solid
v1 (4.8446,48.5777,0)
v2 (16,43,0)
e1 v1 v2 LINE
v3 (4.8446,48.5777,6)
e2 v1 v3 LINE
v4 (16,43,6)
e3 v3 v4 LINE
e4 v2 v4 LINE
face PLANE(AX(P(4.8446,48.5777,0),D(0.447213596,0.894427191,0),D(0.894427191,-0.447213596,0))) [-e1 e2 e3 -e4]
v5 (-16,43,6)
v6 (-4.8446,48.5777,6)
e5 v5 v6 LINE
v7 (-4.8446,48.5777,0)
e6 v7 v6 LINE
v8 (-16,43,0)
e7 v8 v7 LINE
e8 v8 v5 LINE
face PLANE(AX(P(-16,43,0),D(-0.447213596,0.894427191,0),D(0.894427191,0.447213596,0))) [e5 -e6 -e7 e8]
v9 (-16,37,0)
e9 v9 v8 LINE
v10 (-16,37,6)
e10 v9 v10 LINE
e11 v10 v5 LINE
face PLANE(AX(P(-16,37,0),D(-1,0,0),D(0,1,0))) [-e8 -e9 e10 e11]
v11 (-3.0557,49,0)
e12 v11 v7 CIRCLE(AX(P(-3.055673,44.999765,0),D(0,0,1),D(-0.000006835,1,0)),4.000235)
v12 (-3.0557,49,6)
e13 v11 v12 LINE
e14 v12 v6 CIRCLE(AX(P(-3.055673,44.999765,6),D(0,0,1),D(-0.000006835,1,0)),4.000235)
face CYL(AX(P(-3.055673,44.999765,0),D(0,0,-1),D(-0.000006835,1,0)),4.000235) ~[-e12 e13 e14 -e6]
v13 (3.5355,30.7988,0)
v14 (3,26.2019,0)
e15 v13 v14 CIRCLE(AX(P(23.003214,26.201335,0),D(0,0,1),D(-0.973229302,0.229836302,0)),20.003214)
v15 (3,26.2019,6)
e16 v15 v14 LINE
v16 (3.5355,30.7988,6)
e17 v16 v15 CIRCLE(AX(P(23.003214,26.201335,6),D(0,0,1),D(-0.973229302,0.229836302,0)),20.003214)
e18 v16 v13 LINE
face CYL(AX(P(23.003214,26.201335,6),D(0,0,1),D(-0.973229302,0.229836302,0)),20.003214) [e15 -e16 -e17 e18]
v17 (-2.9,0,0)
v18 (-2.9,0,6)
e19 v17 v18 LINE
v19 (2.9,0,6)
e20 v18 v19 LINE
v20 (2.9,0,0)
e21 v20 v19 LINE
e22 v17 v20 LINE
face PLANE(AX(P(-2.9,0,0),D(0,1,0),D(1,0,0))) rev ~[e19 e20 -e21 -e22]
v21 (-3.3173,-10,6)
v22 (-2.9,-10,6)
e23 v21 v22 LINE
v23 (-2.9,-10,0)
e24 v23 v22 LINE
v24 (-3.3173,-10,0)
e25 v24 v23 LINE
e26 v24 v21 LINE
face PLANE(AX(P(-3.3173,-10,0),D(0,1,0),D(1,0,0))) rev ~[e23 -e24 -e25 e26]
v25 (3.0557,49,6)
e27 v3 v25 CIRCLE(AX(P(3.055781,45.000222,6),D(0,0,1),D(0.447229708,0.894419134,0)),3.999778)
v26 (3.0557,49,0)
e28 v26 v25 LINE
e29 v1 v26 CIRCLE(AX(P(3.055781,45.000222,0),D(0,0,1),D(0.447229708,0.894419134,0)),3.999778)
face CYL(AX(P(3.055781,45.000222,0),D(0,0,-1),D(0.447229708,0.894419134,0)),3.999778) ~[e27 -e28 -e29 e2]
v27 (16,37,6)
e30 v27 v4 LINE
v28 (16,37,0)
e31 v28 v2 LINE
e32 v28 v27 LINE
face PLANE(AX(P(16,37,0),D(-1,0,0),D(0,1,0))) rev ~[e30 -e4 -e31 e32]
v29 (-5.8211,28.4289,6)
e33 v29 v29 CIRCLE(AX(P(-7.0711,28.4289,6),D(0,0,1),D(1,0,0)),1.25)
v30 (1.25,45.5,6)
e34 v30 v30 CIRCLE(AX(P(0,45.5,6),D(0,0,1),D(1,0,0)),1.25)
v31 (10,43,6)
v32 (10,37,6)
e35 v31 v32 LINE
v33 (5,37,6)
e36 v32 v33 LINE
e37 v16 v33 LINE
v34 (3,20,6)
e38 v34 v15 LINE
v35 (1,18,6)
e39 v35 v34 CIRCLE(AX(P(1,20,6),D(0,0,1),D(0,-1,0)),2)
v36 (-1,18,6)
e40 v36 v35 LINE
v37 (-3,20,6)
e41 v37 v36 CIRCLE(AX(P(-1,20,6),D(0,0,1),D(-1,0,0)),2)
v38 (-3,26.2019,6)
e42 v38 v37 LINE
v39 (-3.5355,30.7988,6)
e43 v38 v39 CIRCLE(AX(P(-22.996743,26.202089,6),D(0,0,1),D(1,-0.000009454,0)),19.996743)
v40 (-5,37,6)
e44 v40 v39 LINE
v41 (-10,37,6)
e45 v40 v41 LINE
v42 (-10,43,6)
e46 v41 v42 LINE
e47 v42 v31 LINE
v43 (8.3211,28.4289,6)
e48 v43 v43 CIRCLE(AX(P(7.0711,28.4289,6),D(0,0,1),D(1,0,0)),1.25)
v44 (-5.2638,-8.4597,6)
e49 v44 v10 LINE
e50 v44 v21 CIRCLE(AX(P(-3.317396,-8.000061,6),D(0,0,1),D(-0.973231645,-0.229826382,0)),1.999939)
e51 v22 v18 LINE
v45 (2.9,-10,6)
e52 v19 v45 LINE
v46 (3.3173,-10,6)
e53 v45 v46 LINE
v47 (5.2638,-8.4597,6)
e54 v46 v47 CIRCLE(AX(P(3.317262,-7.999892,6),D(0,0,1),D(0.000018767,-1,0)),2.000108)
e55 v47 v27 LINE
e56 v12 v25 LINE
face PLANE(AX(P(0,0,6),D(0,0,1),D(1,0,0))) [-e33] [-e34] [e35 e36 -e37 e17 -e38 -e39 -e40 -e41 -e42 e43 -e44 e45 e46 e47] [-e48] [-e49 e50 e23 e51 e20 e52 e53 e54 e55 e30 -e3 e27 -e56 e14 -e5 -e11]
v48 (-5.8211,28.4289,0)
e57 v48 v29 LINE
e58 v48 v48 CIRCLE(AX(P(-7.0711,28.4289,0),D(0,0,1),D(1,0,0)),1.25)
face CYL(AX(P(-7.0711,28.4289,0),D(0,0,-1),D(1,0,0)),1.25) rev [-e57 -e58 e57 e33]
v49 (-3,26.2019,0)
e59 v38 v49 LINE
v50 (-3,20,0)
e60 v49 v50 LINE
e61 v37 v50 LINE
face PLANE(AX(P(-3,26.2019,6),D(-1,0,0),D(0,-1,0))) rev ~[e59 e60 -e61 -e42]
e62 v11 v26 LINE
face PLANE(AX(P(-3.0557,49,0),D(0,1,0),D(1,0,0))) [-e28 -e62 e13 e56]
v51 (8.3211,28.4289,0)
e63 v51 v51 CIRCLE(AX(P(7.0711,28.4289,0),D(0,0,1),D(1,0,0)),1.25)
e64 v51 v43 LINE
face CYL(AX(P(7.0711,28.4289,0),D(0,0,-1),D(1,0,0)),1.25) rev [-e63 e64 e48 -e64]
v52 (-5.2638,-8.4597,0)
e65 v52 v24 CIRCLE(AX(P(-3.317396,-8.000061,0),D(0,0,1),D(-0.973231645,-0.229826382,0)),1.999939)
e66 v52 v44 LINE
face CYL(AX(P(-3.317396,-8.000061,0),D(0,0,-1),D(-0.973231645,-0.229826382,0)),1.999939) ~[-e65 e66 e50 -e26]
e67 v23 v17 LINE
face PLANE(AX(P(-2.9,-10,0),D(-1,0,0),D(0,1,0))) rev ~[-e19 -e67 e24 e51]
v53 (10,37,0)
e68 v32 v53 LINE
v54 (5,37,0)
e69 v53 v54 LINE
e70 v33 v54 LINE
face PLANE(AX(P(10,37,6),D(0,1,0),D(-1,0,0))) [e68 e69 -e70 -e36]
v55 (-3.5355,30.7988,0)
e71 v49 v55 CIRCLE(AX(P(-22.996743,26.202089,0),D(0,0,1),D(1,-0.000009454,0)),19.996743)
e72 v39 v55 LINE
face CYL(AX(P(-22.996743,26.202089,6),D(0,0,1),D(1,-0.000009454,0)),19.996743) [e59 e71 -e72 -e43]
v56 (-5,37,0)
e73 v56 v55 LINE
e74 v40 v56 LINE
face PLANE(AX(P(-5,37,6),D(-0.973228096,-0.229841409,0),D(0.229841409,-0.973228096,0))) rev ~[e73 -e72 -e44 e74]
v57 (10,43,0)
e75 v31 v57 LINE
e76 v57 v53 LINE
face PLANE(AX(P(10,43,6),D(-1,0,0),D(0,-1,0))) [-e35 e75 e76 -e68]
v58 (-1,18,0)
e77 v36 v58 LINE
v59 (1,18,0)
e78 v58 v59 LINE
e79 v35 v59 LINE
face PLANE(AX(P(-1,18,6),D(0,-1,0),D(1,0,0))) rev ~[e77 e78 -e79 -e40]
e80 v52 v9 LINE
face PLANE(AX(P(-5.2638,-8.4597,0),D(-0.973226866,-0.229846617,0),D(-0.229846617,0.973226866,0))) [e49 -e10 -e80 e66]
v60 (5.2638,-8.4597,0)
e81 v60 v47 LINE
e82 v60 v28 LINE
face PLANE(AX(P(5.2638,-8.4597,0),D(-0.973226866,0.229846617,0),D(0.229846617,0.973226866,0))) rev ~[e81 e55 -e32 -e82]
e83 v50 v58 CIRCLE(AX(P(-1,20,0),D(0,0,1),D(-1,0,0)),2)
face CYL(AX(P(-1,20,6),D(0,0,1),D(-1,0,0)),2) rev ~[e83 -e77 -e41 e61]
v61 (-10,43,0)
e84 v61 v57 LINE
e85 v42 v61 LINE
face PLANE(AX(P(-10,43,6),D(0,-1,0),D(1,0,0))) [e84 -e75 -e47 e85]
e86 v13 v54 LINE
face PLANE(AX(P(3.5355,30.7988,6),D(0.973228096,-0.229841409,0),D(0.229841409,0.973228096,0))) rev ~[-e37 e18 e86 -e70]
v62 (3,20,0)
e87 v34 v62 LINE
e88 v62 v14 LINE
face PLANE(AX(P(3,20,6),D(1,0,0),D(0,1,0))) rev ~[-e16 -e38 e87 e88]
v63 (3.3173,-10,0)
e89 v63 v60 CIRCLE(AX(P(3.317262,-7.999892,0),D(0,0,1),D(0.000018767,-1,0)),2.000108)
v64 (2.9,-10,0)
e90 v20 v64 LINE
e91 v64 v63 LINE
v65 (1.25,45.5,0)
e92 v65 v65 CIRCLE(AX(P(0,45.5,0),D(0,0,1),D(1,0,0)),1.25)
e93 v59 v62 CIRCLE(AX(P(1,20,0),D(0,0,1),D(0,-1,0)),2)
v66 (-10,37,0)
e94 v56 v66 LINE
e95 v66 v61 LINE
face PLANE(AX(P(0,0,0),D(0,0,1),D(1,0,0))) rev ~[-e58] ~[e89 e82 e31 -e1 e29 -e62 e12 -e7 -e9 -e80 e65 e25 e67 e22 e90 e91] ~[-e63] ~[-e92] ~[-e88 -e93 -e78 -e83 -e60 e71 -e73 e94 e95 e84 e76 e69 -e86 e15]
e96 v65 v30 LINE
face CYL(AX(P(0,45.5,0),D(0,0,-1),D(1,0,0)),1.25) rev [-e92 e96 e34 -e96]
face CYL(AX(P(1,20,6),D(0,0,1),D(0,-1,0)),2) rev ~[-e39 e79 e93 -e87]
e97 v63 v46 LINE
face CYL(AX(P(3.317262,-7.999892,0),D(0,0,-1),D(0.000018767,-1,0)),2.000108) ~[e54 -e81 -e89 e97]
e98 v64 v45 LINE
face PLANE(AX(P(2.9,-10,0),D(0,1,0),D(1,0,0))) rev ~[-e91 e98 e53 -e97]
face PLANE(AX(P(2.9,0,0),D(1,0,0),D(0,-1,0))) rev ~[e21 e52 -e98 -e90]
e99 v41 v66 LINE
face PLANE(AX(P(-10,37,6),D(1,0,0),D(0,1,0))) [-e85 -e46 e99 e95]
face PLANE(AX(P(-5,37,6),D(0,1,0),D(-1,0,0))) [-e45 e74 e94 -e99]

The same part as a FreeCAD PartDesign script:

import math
import FreeCAD as App
import Part
import Sketcher
Q = App.Units.Quantity

doc = App.newDocument("Part")
params = doc.addObject("Spreadsheet::Sheet", "Params")
for row, (alias, value) in enumerate([
    ("sketch1_radius", "2 mm"),
    ("sketch1_radius2", "4 mm"),
    ("sketch1_diameter", "2.5 mm"),
    ("sketch1_height", "10 mm"),
    ("sketch1_height2", "6 mm"),
    ("pad1_length", "6 mm"),
    ("sketch2_radius", "2 mm"),
    ("sketch2_radius2", "2 mm"),
    ("sketch2_width", "20 mm"),
    ("sketch2_width2", "5 mm"),
    ("sketch2_width3", "2 mm"),
], start=1):
    params.set(f"A{row}", alias)
    params.set(f"B{row}", "=" + value)
    params.setAlias(f"B{row}", alias)

body = doc.addObject("PartDesign::Body", "Body")

# Sketch on XY plane
sketch1 = body.newObject("Sketcher::SketchObject", "Sketch")
sketch1.AttachmentSupport = (doc.getObject("XY_Plane"), [""])
sketch1.MapMode = "FlatFace"
sketch1.addGeometry([
    Part.LineSegment(App.Vector(-3.3173, -10, 0), App.Vector(-2.9, -10, 0)),  # 0
    Part.LineSegment(App.Vector(-2.9, -10, 0), App.Vector(-2.9, 0, 0)),  # 1
    Part.LineSegment(App.Vector(-2.9, 0, 0), App.Vector(2.9, 0, 0)),  # 2
    Part.LineSegment(App.Vector(2.9, 0, 0), App.Vector(2.9, -10, 0)),  # 3
    Part.LineSegment(App.Vector(2.9, -10, 0), App.Vector(3.3173, -10, 0)),  # 4
    Part.ArcOfCircle(Part.Circle(App.Vector(3.3173, -8, 0), App.Vector(0, 0, 1), 2), math.radians(-90), math.radians(-13.287926)),  # 5
    Part.LineSegment(App.Vector(5.2638, -8.4597, 0), App.Vector(16, 37, 0)),  # 6
    Part.LineSegment(App.Vector(16, 37, 0), App.Vector(16, 43, 0)),  # 7
    Part.LineSegment(App.Vector(16, 43, 0), App.Vector(4.8446, 48.5777, 0)),  # 8
    Part.ArcOfCircle(Part.Circle(App.Vector(3.0557, 45, 0), App.Vector(0, 0, 1), 4.000013), math.radians(63.434308), math.radians(90)),  # 9
    Part.LineSegment(App.Vector(3.0557, 49, 0), App.Vector(-3.0557, 49, 0)),  # 10
    Part.ArcOfCircle(Part.Circle(App.Vector(-3.0557, 45, 0), App.Vector(0, 0, 1), 4), math.radians(90), math.radians(116.565692)),  # 11
    Part.LineSegment(App.Vector(-4.8446, 48.5777, 0), App.Vector(-16, 43, 0)),  # 12
    Part.LineSegment(App.Vector(-16, 43, 0), App.Vector(-16, 37, 0)),  # 13
    Part.LineSegment(App.Vector(-16, 37, 0), App.Vector(-5.2638, -8.4597, 0)),  # 14
    Part.ArcOfCircle(Part.Circle(App.Vector(-3.3173, -8, 0), App.Vector(0, 0, 1), 2.000047), math.radians(-166.712074), math.radians(-90)),  # 15
    Part.Circle(App.Vector(-7.0711, 28.4289, 0), App.Vector(0, 0, 1), 1.25),  # 16
    Part.Circle(App.Vector(7.0711, 28.4289, 0), App.Vector(0, 0, 1), 1.25),  # 17
    Part.Circle(App.Vector(0, 45.5, 0), App.Vector(0, 0, 1), 1.25),  # 18
], False)
sketch1.addConstraint([
    Sketcher.Constraint("Coincident", 0, 2, 1, 1),
    Sketcher.Constraint("Coincident", 1, 2, 2, 1),
    Sketcher.Constraint("Coincident", 2, 2, 3, 1),
    Sketcher.Constraint("Coincident", 3, 2, 4, 1),
    Sketcher.Constraint("Tangent", 4, 2, 5, 1),
    Sketcher.Constraint("Tangent", 5, 2, 6, 1),
    Sketcher.Constraint("Coincident", 6, 2, 7, 1),
    Sketcher.Constraint("Coincident", 7, 2, 8, 1),
    Sketcher.Constraint("Tangent", 8, 2, 9, 1),
    Sketcher.Constraint("Tangent", 9, 2, 10, 1),
    Sketcher.Constraint("Tangent", 10, 2, 11, 1),
    Sketcher.Constraint("Tangent", 11, 2, 12, 1),
    Sketcher.Constraint("Coincident", 12, 2, 13, 1),
    Sketcher.Constraint("Coincident", 13, 2, 14, 1),
    Sketcher.Constraint("Tangent", 14, 2, 15, 1),
    Sketcher.Constraint("Tangent", 15, 2, 0, 1),
    Sketcher.Constraint("Horizontal", 0),
    Sketcher.Constraint("Vertical", 1),
    Sketcher.Constraint("Horizontal", 2),
    Sketcher.Constraint("Vertical", 3),
    Sketcher.Constraint("Horizontal", 4),
    Sketcher.Constraint("Vertical", 7),
    Sketcher.Constraint("Horizontal", 10),
    Sketcher.Constraint("Vertical", 13),
    Sketcher.Constraint("Equal", 9, 11),
    Sketcher.Constraint("Equal", 5, 15),
    Sketcher.Constraint("Equal", 16, 17),
    Sketcher.Constraint("Equal", 17, 18),
    Sketcher.Constraint("Symmetric", 1, 2, 2, 2, -1, 1),
    Sketcher.Constraint("Symmetric", 5, 3, 15, 3, -2),
    Sketcher.Constraint("Symmetric", 16, 3, 17, 3, -2),
    Sketcher.Constraint("Symmetric", 8, 2, 11, 2, -2),
    Sketcher.Constraint("Symmetric", 6, 2, 13, 2, -2),
    Sketcher.Constraint("PointOnObject", 18, 3, -2),
    Sketcher.Constraint("Radius", 5, Q("2 mm")),
    Sketcher.Constraint("Radius", 9, Q("4 mm")),
    Sketcher.Constraint("Diameter", 16, Q("2.5 mm")),
    Sketcher.Constraint("DistanceY", 1, 1, 1, 2, Q("10 mm")),
    Sketcher.Constraint("DistanceY", 7, 1, 7, 2, Q("6 mm")),
    Sketcher.Constraint("DistanceX", 2, 1, 2, 2, Q("5.8 mm")),
    Sketcher.Constraint("DistanceX", -1, 1, 6, 2, Q("16 mm")),
    Sketcher.Constraint("DistanceY", -1, 1, 7, 2, Q("43 mm")),
    Sketcher.Constraint("DistanceY", 6, 2, 9, 3, Q("8 mm")),
    Sketcher.Constraint("DistanceY", 7, 2, 18, 3, Q("2.5 mm")),
    Sketcher.Constraint("Distance", 8, Q("12.472 mm")),
    Sketcher.Constraint("DistanceX", 0, 1, 0, 2, Q("0.4173 mm")),
    Sketcher.Constraint("DistanceX", 16, 3, -1, 1, Q("7.071 mm")),
    Sketcher.Constraint("DistanceY", -1, 1, 16, 3, Q("28.429 mm")),
])
sketch1.setExpression("Constraints[34]", "Params.sketch1_radius")
sketch1.setExpression("Constraints[35]", "Params.sketch1_radius2")
sketch1.setExpression("Constraints[36]", "Params.sketch1_diameter")
sketch1.setExpression("Constraints[37]", "Params.sketch1_height")
sketch1.setExpression("Constraints[38]", "Params.sketch1_height2")
pad1 = body.newObject("PartDesign::Pad", "Pad")
pad1.Profile = sketch1
pad1.setExpression("Length", "Params.pad1_length")

# Sketch on XY plane
sketch2 = body.newObject("Sketcher::SketchObject", "Sketch001")
sketch2.AttachmentSupport = (doc.getObject("XY_Plane"), [""])
sketch2.MapMode = "FlatFace"
sketch2.AttachmentOffset = App.Placement(App.Vector(0, 0, 6), App.Rotation())
sketch2.addGeometry([
    Part.LineSegment(App.Vector(10, 43, 0), App.Vector(-10, 43, 0)),  # 0
    Part.LineSegment(App.Vector(-10, 43, 0), App.Vector(-10, 37, 0)),  # 1
    Part.LineSegment(App.Vector(-10, 37, 0), App.Vector(-5, 37, 0)),  # 2
    Part.LineSegment(App.Vector(-5, 37, 0), App.Vector(-3.5355, 30.7988, 0)),  # 3
    Part.ArcOfCircle(Part.Circle(App.Vector(-22.996743, 26.202089, 0), App.Vector(0, 0, 1), 19.996743), math.radians(-0.000542), math.radians(13.289594)),  # 4
    Part.LineSegment(App.Vector(-3, 26.2019, 0), App.Vector(-3, 20, 0)),  # 5
    Part.ArcOfCircle(Part.Circle(App.Vector(-1, 20, 0), App.Vector(0, 0, 1), 2), math.radians(180), math.radians(270)),  # 6
    Part.LineSegment(App.Vector(-1, 18, 0), App.Vector(1, 18, 0)),  # 7
    Part.ArcOfCircle(Part.Circle(App.Vector(1, 20, 0), App.Vector(0, 0, 1), 2), math.radians(-90), math.radians(0)),  # 8
    Part.LineSegment(App.Vector(3, 20, 0), App.Vector(3, 26.2019, 0)),  # 9
    Part.ArcOfCircle(Part.Circle(App.Vector(23.003214, 26.201335, 0), App.Vector(0, 0, 1), 20.003214), math.radians(166.712566), math.radians(179.998382)),  # 10
    Part.LineSegment(App.Vector(3.5355, 30.7988, 0), App.Vector(5, 37, 0)),  # 11
    Part.LineSegment(App.Vector(5, 37, 0), App.Vector(10, 37, 0)),  # 12
    Part.LineSegment(App.Vector(10, 37, 0), App.Vector(10, 43, 0)),  # 13
], False)
sketch2.addConstraint([
    Sketcher.Constraint("Coincident", 0, 2, 1, 1),
    Sketcher.Constraint("Coincident", 1, 2, 2, 1),
    Sketcher.Constraint("Coincident", 2, 2, 3, 1),
    Sketcher.Constraint("Coincident", 3, 2, 4, 2),
    Sketcher.Constraint("Coincident", 4, 1, 5, 1),
    Sketcher.Constraint("Coincident", 5, 2, 6, 1),
    Sketcher.Constraint("Coincident", 6, 2, 7, 1),
    Sketcher.Constraint("Coincident", 7, 2, 8, 1),
    Sketcher.Constraint("Coincident", 8, 2, 9, 1),
    Sketcher.Constraint("Coincident", 9, 2, 10, 2),
    Sketcher.Constraint("Coincident", 10, 1, 11, 1),
    Sketcher.Constraint("Coincident", 11, 2, 12, 1),
    Sketcher.Constraint("Coincident", 12, 2, 13, 1),
    Sketcher.Constraint("Coincident", 13, 2, 0, 1),
    Sketcher.Constraint("Horizontal", 0),
    Sketcher.Constraint("Vertical", 1),
    Sketcher.Constraint("Horizontal", 2),
    Sketcher.Constraint("Vertical", 5),
    Sketcher.Constraint("Horizontal", 7),
    Sketcher.Constraint("Vertical", 9),
    Sketcher.Constraint("Horizontal", 12),
    Sketcher.Constraint("Vertical", 13),
    Sketcher.Constraint("Radius", 6, Q("2 mm")),
    Sketcher.Constraint("Radius", 8, Q("2 mm")),
    Sketcher.Constraint("DistanceX", 0, 2, 0, 1, Q("20 mm")),
    Sketcher.Constraint("DistanceX", 2, 1, 2, 2, Q("5 mm")),
    Sketcher.Constraint("DistanceX", 7, 1, 7, 2, Q("2 mm")),
    Sketcher.Constraint("DistanceX", 12, 1, 12, 2, Q("5 mm")),
    Sketcher.Constraint("DistanceY", 1, 2, 1, 1, Q("6 mm")),
    Sketcher.Constraint("DistanceY", 13, 1, 13, 2, Q("6 mm")),
    Sketcher.Constraint("DistanceY", -1, 1, 6, 3, Q("20 mm")),
    Sketcher.Constraint("DistanceX", 2, 2, -1, 1, Q("5 mm")),
    Sketcher.Constraint("DistanceY", -1, 1, 5, 2, Q("20 mm")),
    Sketcher.Constraint("DistanceY", -1, 1, 8, 2, Q("20 mm")),
    Sketcher.Constraint("DistanceX", 6, 3, 8, 3, Q("2 mm")),
    Sketcher.Constraint("DistanceX", 2, 2, 8, 3, Q("6 mm")),
    Sketcher.Constraint("DistanceX", 6, 2, 8, 3, Q("2 mm")),
    Sketcher.Constraint("DistanceY", -1, 1, 0, 2, Q("43 mm")),
    Sketcher.Constraint("DistanceX", 4, 3, 10, 3, Q("46 mm")),
    Sketcher.Constraint("Radius", 4, Q("19.9967 mm")),
    Sketcher.Constraint("DistanceY", 5, 2, 5, 1, Q("6.202 mm")),
    Sketcher.Constraint("DistanceY", 9, 1, 9, 2, Q("6.202 mm")),
    Sketcher.Constraint("DistanceY", -1, 1, 4, 3, Q("26.202 mm")),
    Sketcher.Constraint("DistanceY", 4, 1, 3, 2, Q("4.597 mm")),
    Sketcher.Constraint("DistanceY", 9, 2, 10, 1, Q("4.597 mm")),
    Sketcher.Constraint("DistanceX", 3, 2, 10, 1, Q("7.071 mm")),
])
sketch2.setExpression("Constraints[22]", "Params.sketch2_radius")
sketch2.setExpression("Constraints[23]", "Params.sketch2_radius2")
sketch2.setExpression("Constraints[24]", "Params.sketch2_width")
sketch2.setExpression("Constraints[25]", "Params.sketch2_width2")
sketch2.setExpression("Constraints[26]", "Params.sketch2_width3")
pocket1 = body.newObject("PartDesign::Pocket", "Pocket")
pocket1.Profile = sketch2
pocket1.Type = "ThroughAll"

doc.recompute()
